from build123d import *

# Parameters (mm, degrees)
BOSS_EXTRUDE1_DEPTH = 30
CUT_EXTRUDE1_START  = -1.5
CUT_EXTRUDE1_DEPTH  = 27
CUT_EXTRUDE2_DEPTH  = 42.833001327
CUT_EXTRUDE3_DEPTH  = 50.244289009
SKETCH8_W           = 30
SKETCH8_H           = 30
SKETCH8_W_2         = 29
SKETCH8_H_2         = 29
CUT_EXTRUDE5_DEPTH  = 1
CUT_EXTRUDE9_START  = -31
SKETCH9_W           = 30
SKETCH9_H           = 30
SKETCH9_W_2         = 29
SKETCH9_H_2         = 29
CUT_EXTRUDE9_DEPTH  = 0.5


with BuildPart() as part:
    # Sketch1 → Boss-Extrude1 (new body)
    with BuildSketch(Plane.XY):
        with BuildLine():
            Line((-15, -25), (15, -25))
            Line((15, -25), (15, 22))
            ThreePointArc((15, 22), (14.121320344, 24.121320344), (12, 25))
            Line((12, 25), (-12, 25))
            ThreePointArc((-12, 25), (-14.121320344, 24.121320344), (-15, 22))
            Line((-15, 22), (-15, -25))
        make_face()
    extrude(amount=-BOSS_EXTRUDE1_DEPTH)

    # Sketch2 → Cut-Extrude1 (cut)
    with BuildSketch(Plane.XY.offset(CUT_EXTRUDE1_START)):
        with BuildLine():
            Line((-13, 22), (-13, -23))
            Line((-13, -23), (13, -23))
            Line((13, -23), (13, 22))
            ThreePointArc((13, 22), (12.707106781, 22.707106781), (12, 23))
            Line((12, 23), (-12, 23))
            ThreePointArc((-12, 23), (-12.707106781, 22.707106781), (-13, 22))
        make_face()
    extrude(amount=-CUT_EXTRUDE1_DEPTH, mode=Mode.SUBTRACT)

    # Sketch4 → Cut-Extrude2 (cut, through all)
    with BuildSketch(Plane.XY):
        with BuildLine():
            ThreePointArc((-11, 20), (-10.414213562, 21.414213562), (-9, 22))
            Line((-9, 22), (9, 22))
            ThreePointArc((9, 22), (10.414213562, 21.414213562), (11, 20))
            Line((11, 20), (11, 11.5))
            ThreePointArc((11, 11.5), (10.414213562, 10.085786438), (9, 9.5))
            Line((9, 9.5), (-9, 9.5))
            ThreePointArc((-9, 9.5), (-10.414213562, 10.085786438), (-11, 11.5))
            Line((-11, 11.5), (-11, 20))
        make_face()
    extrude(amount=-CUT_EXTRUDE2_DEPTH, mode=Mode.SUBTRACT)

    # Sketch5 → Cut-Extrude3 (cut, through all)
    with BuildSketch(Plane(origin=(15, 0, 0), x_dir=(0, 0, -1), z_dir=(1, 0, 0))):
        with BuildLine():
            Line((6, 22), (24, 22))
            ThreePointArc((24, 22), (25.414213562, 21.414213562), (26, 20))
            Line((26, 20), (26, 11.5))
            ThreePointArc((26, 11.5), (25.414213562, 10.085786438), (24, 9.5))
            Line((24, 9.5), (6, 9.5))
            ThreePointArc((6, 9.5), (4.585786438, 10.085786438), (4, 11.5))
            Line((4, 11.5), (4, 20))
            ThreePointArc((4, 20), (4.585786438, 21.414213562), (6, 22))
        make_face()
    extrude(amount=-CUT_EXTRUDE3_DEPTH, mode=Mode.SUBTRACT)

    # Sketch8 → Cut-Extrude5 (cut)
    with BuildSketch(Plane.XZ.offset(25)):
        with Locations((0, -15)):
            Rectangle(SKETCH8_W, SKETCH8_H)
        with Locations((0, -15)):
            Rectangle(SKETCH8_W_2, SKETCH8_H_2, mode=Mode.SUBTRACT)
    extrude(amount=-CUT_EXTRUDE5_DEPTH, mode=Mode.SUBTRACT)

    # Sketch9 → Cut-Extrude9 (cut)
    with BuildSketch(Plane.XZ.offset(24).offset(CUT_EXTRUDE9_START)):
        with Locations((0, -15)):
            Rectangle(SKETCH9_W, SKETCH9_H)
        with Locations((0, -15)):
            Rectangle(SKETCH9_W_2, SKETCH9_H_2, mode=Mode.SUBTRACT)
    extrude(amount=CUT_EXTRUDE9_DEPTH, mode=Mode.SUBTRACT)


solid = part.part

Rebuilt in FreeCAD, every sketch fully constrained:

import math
import FreeCAD as App
import Part
import Sketcher

V = App.Vector


def add_polygon(sketch, points):
    """Adds a closed chain of lines whose ends are joined by coincident constraints."""
    first, n = sketch.GeometryCount, len(points)
    for a, b in zip(points, points[1:] + points[:1]):
        sketch.addGeometry(Part.LineSegment(App.Vector(*a, 0), App.Vector(*b, 0)), False)
    for i in range(n):
        sketch.addConstraint(Sketcher.Constraint("Coincident", first + i, 2, first + (i + 1) % n, 1))

doc = App.newDocument("Part")
body = doc.addObject("PartDesign::Body", "Body")

sketch1 = body.newObject("Sketcher::SketchObject", "Sketch")
sketch1.AttachmentSupport = (doc.getObject("XY_Plane"), [""])
sketch1.MapMode = "FlatFace"
sketch1.addGeometry([
    Part.LineSegment(V(-15, -25, 0), V(15, -25, 0)),
    Part.LineSegment(V(15, -25, 0), V(15, 22, 0)),
    Part.ArcOfCircle(Part.Circle(V(12, 22, 0), V(0, 0, 1), 3), math.radians(0), math.radians(90)),
    Part.LineSegment(V(12, 25, 0), V(-12, 25, 0)),
    Part.ArcOfCircle(Part.Circle(V(-12, 22, 0), V(0, 0, 1), 3), math.radians(90), math.radians(180)),
    Part.LineSegment(V(-15, 22, 0), V(-15, -25, 0)),
], False)
sketch1.addConstraint([
    Sketcher.Constraint("Coincident", 0, 2, 1, 1),
    Sketcher.Constraint("Tangent", 1, 2, 2, 1),
    Sketcher.Constraint("Tangent", 2, 2, 3, 1),
    Sketcher.Constraint("Tangent", 3, 2, 4, 1),
    Sketcher.Constraint("Tangent", 4, 2, 5, 1),
    Sketcher.Constraint("Coincident", 5, 2, 0, 1),
    Sketcher.Constraint("Horizontal", 0),
    Sketcher.Constraint("Vertical", 1),
    Sketcher.Constraint("Horizontal", 3),
    Sketcher.Constraint("Vertical", 5),
    Sketcher.Constraint("Equal", 2, 4),
    Sketcher.Constraint("Radius", 2, 3.0),
    Sketcher.Constraint("DistanceX", 0, 1, 0, 2, 30.0),
    Sketcher.Constraint("DistanceY", 1, 1, 1, 2, 47.0),
    Sketcher.Constraint("DistanceX", -1, 1, 2, 3, 12.0),
    Sketcher.Constraint("DistanceY", -1, 1, 2, 3, 22.0),
])
pad1 = body.newObject("PartDesign::Pad", "Pad")
pad1.Profile = sketch1
pad1.Length = 30
pad1.Reversed = True

sketch2 = body.newObject("Sketcher::SketchObject", "Sketch001")
sketch2.AttachmentSupport = (doc.getObject("XY_Plane"), [""])
sketch2.MapMode = "FlatFace"
sketch2.AttachmentOffset = App.Placement(V(0, 0, -1.5), App.Rotation())
sketch2.addGeometry([
    Part.LineSegment(V(-13, 22, 0), V(-13, -23, 0)),
    Part.LineSegment(V(-13, -23, 0), V(13, -23, 0)),
    Part.LineSegment(V(13, -23, 0), V(13, 22, 0)),
    Part.ArcOfCircle(Part.Circle(V(12, 22, 0), V(0, 0, 1), 1), math.radians(0), math.radians(90)),
    Part.LineSegment(V(12, 23, 0), V(-12, 23, 0)),
    Part.ArcOfCircle(Part.Circle(V(-12, 22, 0), V(0, 0, 1), 1), math.radians(90), math.radians(180)),
], False)
sketch2.addConstraint([
    Sketcher.Constraint("Coincident", 0, 2, 1, 1),
    Sketcher.Constraint("Coincident", 1, 2, 2, 1),
    Sketcher.Constraint("Tangent", 2, 2, 3, 1),
    Sketcher.Constraint("Tangent", 3, 2, 4, 1),
    Sketcher.Constraint("Tangent", 4, 2, 5, 1),
    Sketcher.Constraint("Tangent", 5, 2, 0, 1),
    Sketcher.Constraint("Vertical", 0),
    Sketcher.Constraint("Horizontal", 1),
    Sketcher.Constraint("Vertical", 2),
    Sketcher.Constraint("Horizontal", 4),
    Sketcher.Constraint("Equal", 3, 5),
    Sketcher.Constraint("Radius", 3, 1.0),
    Sketcher.Constraint("DistanceX", 1, 1, 1, 2, 26.0),
    Sketcher.Constraint("DistanceY", 0, 2, 0, 1, 45.0),
    Sketcher.Constraint("DistanceX", -1, 1, 3, 3, 12.0),
    Sketcher.Constraint("DistanceY", -1, 1, 3, 3, 22.0),
])
pocket1 = body.newObject("PartDesign::Pocket", "Pocket")
pocket1.Profile = sketch2
pocket1.Length = 27

sketch3 = body.newObject("Sketcher::SketchObject", "Sketch002")
sketch3.AttachmentSupport = (doc.getObject("XY_Plane"), [""])
sketch3.MapMode = "FlatFace"
sketch3.addGeometry([
    Part.ArcOfCircle(Part.Circle(V(-9, 20, 0), V(0, 0, 1), 2), math.radians(90), math.radians(180)),
    Part.LineSegment(V(-11, 20, 0), V(-11, 11.5, 0)),
    Part.ArcOfCircle(Part.Circle(V(-9, 11.5, 0), V(0, 0, 1), 2), math.radians(-180), math.radians(-90)),
    Part.LineSegment(V(-9, 9.5, 0), V(9, 9.5, 0)),
    Part.ArcOfCircle(Part.Circle(V(9, 11.5, 0), V(0, 0, 1), 2), math.radians(-90), math.radians(0)),
    Part.LineSegment(V(11, 11.5, 0), V(11, 20, 0)),
    Part.ArcOfCircle(Part.Circle(V(9, 20, 0), V(0, 0, 1), 2), math.radians(0), math.radians(90)),
    Part.LineSegment(V(9, 22, 0), V(-9, 22, 0)),
], False)
sketch3.addConstraint([
    Sketcher.Constraint("Tangent", 0, 2, 1, 1),
    Sketcher.Constraint("Tangent", 1, 2, 2, 1),
    Sketcher.Constraint("Tangent", 2, 2, 3, 1),
    Sketcher.Constraint("Tangent", 3, 2, 4, 1),
    Sketcher.Constraint("Tangent", 4, 2, 5, 1),
    Sketcher.Constraint("Tangent", 5, 2, 6, 1),
    Sketcher.Constraint("Tangent", 6, 2, 7, 1),
    Sketcher.Constraint("Tangent", 7, 2, 0, 1),
    Sketcher.Constraint("Vertical", 1),
    Sketcher.Constraint("Horizontal", 3),
    Sketcher.Constraint("Vertical", 5),
    Sketcher.Constraint("Horizontal", 7),
    Sketcher.Constraint("Equal", 0, 2),
    Sketcher.Constraint("Equal", 2, 4),
    Sketcher.Constraint("Equal", 4, 6),
    Sketcher.Constraint("Radius", 0, 2.0),
    Sketcher.Constraint("DistanceX", 3, 1, 3, 2, 18.0),
    Sketcher.Constraint("DistanceY", 1, 2, 1, 1, 8.5),
    Sketcher.Constraint("DistanceX", 0, 3, -1, 1, 9.0),
    Sketcher.Constraint("DistanceY", -1, 1, 0, 3, 20.0),
])
pocket2 = body.newObject("PartDesign::Pocket", "Pocket001")
pocket2.Profile = sketch3
pocket2.Type = "ThroughAll"

sketch4 = body.newObject("Sketcher::SketchObject", "Sketch003")
sketch4.AttachmentSupport = (doc.getObject("YZ_Plane"), [""])
sketch4.MapMode = "FlatFace"
sketch4.AttachmentOffset = App.Placement(V(0, 0, 15), App.Rotation())
sketch4.addGeometry([
    Part.LineSegment(V(22, -24, 0), V(22, -6, 0)),
    Part.ArcOfCircle(Part.Circle(V(20, -6, 0), V(0, 0, 1), 2), math.radians(0), math.radians(90)),
    Part.LineSegment(V(20, -4, 0), V(11.5, -4, 0)),
    Part.ArcOfCircle(Part.Circle(V(11.5, -6, 0), V(0, 0, 1), 2), math.radians(90), math.radians(180)),
    Part.LineSegment(V(9.5, -6, 0), V(9.5, -24, 0)),
    Part.ArcOfCircle(Part.Circle(V(11.5, -24, 0), V(0, 0, 1), 2), math.radians(-180), math.radians(-90)),
    Part.LineSegment(V(11.5, -26, 0), V(20, -26, 0)),
    Part.ArcOfCircle(Part.Circle(V(20, -24, 0), V(0, 0, 1), 2), math.radians(-90), math.radians(0)),
], False)
sketch4.addConstraint([
    Sketcher.Constraint("Tangent", 0, 2, 1, 1),
    Sketcher.Constraint("Tangent", 1, 2, 2, 1),
    Sketcher.Constraint("Tangent", 2, 2, 3, 1),
    Sketcher.Constraint("Tangent", 3, 2, 4, 1),
    Sketcher.Constraint("Tangent", 4, 2, 5, 1),
    Sketcher.Constraint("Tangent", 5, 2, 6, 1),
    Sketcher.Constraint("Tangent", 6, 2, 7, 1),
    Sketcher.Constraint("Tangent", 7, 2, 0, 1),
    Sketcher.Constraint("Vertical", 0),
    Sketcher.Constraint("Horizontal", 2),
    Sketcher.Constraint("Vertical", 4),
    Sketcher.Constraint("Horizontal", 6),
    Sketcher.Constraint("Equal", 1, 3),
    Sketcher.Constraint("Equal", 3, 5),
    Sketcher.Constraint("Equal", 5, 7),
    Sketcher.Constraint("Radius", 1, 2.0),
    Sketcher.Constraint("DistanceY", 0, 1, 0, 2, 18.0),
    Sketcher.Constraint("DistanceX", 2, 2, 2, 1, 8.5),
    Sketcher.Constraint("DistanceX", -1, 1, 1, 3, 20.0),
    Sketcher.Constraint("DistanceY", 1, 3, -1, 1, 6.0),
])
pocket3 = body.newObject("PartDesign::Pocket", "Pocket002")
pocket3.Profile = sketch4
pocket3.Type = "ThroughAll"

sketch5 = body.newObject("Sketcher::SketchObject", "Sketch004")
sketch5.AttachmentSupport = (doc.getObject("XZ_Plane"), [""])
sketch5.MapMode = "FlatFace"
sketch5.AttachmentOffset = App.Placement(V(0, 0, 25), App.Rotation())
add_polygon(sketch5, [(-15, 0), (-15, -30), (15, -30), (15, 0)])
add_polygon(sketch5, [(14, -30), (-14, -30), (-14, 0), (14, 0)])
sketch5.addConstraint([
    Sketcher.Constraint("Vertical", 0),
    Sketcher.Constraint("Horizontal", 1),
    Sketcher.Constraint("Vertical", 2),
    Sketcher.Constraint("Horizontal", 3),
    Sketcher.Constraint("Horizontal", 4),
    Sketcher.Constraint("Vertical", 5),
    Sketcher.Constraint("Horizontal", 6),
    Sketcher.Constraint("Vertical", 7),
    Sketcher.Constraint("Symmetric", 2, 2, 3, 2, -1, 1),
    Sketcher.Constraint("Equal", 3, 0),
    Sketcher.Constraint("Equal", 6, 5),
    Sketcher.Constraint("DistanceX", 1, 1, 1, 2, 30.0),
    Sketcher.Constraint("DistanceX", 4, 2, 4, 1, 29.0),
    Sketcher.Constraint("DistanceX", 4, 2, -1, 1, 14.5),
    Sketcher.Constraint("DistanceY", 4, 2, -1, 1, 29.5),
])
pocket4 = body.newObject("PartDesign::Pocket", "Pocket003")
pocket4.Profile = sketch5
pocket4.Length = 1

sketch6 = body.newObject("Sketcher::SketchObject", "Sketch005")
sketch6.AttachmentSupport = (doc.getObject("XZ_Plane"), [""])
sketch6.MapMode = "FlatFace"
sketch6.AttachmentOffset = App.Placement(V(0, 0, -7), App.Rotation())
add_polygon(sketch6, [(-15, 0), (-15, -30), (15, -30), (15, 0)])
add_polygon(sketch6, [(14, -30), (-14, -30), (-14, 0), (14, 0)])
sketch6.addConstraint([
    Sketcher.Constraint("Vertical", 0),
    Sketcher.Constraint("Horizontal", 1),
    Sketcher.Constraint("Vertical", 2),
    Sketcher.Constraint("Horizontal", 3),
    Sketcher.Constraint("Horizontal", 4),
    Sketcher.Constraint("Vertical", 5),
    Sketcher.Constraint("Horizontal", 6),
    Sketcher.Constraint("Vertical", 7),
    Sketcher.Constraint("Symmetric", 2, 2, 3, 2, -1, 1),
    Sketcher.Constraint("Equal", 3, 0),
    Sketcher.Constraint("Equal", 6, 5),
    Sketcher.Constraint("DistanceX", 1, 1, 1, 2, 30.0),
    Sketcher.Constraint("DistanceX", 4, 2, 4, 1, 29.0),
    Sketcher.Constraint("DistanceX", 4, 2, -1, 1, 14.5),
    Sketcher.Constraint("DistanceY", 4, 2, -1, 1, 29.5),
])
pocket5 = body.newObject("PartDesign::Pocket", "Pocket004")
pocket5.Profile = sketch6
pocket5.Length = 0.5
pocket5.Reversed = True

doc.recompute()
